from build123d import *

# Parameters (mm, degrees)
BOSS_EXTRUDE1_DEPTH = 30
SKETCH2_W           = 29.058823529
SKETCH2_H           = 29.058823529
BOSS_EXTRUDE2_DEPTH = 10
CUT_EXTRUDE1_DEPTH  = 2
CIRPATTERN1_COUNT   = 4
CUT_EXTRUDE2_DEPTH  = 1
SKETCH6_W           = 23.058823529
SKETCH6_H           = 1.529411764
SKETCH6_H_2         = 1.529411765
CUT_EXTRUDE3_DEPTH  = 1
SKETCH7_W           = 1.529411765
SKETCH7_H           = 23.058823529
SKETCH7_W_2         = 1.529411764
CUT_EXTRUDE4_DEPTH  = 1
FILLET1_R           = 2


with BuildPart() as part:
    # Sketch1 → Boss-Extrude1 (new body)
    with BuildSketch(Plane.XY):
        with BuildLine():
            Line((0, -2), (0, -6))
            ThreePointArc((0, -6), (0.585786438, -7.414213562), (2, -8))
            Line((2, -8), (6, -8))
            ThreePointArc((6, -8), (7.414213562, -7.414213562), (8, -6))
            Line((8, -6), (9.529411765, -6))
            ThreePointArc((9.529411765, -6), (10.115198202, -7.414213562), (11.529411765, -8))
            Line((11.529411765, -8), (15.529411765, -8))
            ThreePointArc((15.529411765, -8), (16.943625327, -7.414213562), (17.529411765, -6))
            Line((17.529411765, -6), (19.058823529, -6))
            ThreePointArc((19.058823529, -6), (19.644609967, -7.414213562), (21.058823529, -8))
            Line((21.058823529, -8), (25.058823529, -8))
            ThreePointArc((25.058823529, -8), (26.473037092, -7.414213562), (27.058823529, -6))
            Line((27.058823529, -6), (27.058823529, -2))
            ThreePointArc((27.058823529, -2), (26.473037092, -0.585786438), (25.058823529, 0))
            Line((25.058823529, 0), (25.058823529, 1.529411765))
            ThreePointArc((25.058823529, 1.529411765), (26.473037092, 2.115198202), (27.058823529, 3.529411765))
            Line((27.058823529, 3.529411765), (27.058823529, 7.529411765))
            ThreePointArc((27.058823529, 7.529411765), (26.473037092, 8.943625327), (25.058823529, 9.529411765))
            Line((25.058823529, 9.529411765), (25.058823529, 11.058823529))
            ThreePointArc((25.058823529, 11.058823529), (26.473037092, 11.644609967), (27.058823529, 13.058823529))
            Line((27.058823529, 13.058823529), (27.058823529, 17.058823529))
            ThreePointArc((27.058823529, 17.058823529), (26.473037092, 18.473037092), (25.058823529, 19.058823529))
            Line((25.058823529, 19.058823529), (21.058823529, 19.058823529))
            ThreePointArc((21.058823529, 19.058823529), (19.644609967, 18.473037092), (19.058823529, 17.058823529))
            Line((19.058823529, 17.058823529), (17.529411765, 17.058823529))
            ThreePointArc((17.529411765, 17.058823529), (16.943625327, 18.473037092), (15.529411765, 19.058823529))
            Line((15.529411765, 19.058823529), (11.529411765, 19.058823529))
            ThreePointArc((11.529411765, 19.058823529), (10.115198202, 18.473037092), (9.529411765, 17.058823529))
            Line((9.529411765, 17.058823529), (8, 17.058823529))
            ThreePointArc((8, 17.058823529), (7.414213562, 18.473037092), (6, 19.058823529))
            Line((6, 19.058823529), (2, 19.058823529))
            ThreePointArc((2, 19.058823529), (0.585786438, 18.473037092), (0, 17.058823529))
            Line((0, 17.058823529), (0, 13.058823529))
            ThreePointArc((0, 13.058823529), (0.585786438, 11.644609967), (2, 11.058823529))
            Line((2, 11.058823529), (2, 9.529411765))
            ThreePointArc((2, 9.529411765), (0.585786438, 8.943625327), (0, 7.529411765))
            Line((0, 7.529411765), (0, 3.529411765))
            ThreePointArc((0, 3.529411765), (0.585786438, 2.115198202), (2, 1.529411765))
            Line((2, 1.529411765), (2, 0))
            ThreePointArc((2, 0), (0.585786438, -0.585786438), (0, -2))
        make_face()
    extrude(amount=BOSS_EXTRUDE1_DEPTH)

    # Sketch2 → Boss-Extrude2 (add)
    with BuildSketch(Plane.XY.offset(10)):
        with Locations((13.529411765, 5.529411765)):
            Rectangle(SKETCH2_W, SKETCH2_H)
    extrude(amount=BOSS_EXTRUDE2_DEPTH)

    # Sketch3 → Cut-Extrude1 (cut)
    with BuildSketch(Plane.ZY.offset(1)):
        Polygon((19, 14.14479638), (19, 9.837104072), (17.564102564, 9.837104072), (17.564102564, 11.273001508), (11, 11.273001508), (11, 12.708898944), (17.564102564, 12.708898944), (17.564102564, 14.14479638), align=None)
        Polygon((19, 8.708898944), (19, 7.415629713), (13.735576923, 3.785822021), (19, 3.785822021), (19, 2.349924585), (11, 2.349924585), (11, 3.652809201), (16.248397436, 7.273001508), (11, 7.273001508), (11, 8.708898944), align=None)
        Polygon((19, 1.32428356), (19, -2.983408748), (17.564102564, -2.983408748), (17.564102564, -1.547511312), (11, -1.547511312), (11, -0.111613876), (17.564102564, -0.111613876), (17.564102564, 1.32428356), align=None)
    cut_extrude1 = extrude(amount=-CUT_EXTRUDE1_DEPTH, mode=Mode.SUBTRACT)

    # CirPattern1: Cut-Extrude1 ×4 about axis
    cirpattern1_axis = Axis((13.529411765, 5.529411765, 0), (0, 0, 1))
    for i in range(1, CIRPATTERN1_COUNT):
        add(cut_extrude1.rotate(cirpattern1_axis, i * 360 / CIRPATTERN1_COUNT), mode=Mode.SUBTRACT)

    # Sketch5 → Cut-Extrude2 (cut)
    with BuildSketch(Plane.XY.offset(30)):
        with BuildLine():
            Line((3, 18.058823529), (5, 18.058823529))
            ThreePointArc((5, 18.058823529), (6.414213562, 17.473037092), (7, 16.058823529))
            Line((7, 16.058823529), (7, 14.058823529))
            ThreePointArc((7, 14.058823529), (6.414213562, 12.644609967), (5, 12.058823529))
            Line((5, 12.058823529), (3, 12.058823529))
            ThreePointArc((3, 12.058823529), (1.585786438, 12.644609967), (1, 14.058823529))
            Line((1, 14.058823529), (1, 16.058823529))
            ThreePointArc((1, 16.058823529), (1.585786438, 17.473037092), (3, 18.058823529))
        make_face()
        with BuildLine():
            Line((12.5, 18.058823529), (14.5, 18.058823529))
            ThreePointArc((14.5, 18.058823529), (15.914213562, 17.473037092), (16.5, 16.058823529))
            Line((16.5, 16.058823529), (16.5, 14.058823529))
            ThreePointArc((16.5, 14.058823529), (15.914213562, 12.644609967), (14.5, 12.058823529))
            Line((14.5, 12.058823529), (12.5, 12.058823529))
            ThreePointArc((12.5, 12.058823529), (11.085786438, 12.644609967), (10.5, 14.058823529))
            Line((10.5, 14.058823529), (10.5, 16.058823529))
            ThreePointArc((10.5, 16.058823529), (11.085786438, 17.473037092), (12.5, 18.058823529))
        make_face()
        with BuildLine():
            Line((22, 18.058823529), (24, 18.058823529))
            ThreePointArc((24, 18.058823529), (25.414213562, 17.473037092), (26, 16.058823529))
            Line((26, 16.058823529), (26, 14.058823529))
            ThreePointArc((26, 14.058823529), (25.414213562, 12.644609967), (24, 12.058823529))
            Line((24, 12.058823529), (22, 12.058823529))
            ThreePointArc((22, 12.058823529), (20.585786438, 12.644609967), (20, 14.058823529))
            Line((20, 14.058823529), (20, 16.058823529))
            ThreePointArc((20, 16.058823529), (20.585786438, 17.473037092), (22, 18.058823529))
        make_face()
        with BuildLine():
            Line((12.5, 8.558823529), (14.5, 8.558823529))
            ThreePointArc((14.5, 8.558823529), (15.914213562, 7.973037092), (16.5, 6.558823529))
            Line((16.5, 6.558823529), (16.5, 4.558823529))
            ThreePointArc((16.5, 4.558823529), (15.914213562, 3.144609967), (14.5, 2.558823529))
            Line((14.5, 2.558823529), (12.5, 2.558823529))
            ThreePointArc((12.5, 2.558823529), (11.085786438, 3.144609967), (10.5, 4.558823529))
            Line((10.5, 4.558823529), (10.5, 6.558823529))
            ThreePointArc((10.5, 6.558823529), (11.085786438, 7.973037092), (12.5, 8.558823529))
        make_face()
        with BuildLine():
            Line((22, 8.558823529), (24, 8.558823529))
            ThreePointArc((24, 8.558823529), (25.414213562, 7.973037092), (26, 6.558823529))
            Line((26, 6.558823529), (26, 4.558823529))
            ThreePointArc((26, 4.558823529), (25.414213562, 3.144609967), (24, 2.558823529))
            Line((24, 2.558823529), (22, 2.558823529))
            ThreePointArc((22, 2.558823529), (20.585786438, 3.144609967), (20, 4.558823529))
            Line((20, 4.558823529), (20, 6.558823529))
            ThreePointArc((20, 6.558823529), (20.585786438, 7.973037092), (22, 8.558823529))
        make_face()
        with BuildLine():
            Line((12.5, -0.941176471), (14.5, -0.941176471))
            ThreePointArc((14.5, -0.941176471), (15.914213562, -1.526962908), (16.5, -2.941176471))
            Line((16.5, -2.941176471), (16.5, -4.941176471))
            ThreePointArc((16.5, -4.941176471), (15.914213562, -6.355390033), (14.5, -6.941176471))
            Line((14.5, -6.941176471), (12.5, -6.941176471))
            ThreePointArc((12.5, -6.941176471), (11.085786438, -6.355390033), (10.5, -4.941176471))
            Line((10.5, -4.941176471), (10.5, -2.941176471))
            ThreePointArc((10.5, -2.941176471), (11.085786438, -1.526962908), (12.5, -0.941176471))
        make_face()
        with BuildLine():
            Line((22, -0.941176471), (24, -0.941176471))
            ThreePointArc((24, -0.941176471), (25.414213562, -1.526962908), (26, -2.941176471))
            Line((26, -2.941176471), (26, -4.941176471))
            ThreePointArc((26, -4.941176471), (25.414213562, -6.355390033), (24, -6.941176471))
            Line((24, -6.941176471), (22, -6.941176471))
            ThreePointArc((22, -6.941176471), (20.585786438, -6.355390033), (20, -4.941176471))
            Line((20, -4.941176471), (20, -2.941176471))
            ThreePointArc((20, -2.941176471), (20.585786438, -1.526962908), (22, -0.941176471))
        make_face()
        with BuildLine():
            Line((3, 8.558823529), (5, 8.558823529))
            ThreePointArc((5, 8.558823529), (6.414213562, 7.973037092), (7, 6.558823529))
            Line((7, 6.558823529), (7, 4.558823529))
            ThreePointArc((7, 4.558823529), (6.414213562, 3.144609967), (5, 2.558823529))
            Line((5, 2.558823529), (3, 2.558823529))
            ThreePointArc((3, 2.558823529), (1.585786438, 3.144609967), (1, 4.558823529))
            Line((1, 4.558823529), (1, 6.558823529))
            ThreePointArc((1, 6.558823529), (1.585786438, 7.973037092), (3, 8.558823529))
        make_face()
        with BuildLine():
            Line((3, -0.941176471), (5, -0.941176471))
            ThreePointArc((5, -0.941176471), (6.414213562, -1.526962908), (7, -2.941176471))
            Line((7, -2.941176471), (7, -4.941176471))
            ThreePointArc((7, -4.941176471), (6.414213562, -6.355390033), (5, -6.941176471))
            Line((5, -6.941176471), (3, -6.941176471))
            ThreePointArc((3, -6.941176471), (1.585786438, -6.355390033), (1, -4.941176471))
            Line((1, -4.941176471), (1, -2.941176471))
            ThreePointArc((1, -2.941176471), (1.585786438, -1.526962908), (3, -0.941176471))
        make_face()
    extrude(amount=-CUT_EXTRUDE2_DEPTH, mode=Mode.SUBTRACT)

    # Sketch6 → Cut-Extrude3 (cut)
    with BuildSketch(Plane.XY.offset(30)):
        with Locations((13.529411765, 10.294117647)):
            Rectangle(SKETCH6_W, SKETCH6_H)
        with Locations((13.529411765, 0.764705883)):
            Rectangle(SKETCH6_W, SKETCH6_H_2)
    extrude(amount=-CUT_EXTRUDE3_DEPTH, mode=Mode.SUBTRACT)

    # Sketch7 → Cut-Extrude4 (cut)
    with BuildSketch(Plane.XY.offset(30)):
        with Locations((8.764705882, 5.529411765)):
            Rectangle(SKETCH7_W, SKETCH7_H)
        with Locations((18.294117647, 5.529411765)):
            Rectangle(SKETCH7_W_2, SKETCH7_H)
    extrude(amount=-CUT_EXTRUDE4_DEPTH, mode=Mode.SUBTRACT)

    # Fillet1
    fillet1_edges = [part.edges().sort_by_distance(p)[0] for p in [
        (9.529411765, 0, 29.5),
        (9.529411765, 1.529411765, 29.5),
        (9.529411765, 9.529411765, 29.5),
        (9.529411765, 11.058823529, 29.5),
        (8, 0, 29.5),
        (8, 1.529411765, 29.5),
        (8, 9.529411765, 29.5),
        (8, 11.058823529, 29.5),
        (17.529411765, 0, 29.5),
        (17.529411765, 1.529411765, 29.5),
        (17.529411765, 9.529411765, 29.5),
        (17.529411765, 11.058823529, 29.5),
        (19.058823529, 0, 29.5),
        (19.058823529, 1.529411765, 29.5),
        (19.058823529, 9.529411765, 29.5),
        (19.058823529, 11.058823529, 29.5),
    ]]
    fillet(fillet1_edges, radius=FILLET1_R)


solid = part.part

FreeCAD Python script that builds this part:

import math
import FreeCAD as App
import Part
import Sketcher
from FreeCAD import Vector
Q = App.Units.Quantity


def edges_at(feature, points):
    """Names of the edges that pass closest to the given points."""
    edges = feature.Shape.Edges
    near = lambda p: min(range(len(edges)), key=lambda i: edges[i].distToShape(Part.Vertex(*p))[0])
    return sorted({f"Edge{near(p) + 1}" for p in points})


def add_polygon(sketch, points):
    """Adds a closed chain of lines whose ends are joined by coincident constraints."""
    first, n = sketch.GeometryCount, len(points)
    for a, b in zip(points, points[1:] + points[:1]):
        sketch.addGeometry(Part.LineSegment(App.Vector(*a, 0), App.Vector(*b, 0)), False)
    for i in range(n):
        sketch.addConstraint(Sketcher.Constraint("Coincident", first + i, 2, first + (i + 1) % n, 1))

doc = App.newDocument("Part")
body = doc.addObject("PartDesign::Body", "Body")

# Sketch on XY plane
sketch1 = doc.addObject("Sketcher::SketchObject", "Sketch")
body.addObject(sketch1)
sketch1.AttachmentSupport = (doc.XY_Plane, [""])
sketch1.MapMode = "FlatFace"
sketch1.addGeometry(Part.LineSegment(Vector(0, -2, 0), Vector(0, -6, 0)), False)
sketch1.addGeometry(Part.ArcOfCircle(Part.Circle(Vector(2, -6, 0), Vector(0, 0, 1), 2), math.radians(-180), math.radians(-90)), False)
sketch1.addGeometry(Part.LineSegment(Vector(2, -8, 0), Vector(6, -8, 0)), False)
sketch1.addGeometry(Part.ArcOfCircle(Part.Circle(Vector(6, -6, 0), Vector(0, 0, 1), 2), math.radians(-90), math.radians(0)), False)
sketch1.addGeometry(Part.LineSegment(Vector(8, -6, 0), Vector(9.5, -6, 0)), False)
sketch1.addGeometry(Part.ArcOfCircle(Part.Circle(Vector(11.5, -6, 0), Vector(0, 0, 1), 2), math.radians(180), math.radians(270)), False)
sketch1.addGeometry(Part.LineSegment(Vector(11.5, -8, 0), Vector(15.5, -8, 0)), False)
sketch1.addGeometry(Part.ArcOfCircle(Part.Circle(Vector(15.5, -6, 0), Vector(0, 0, 1), 2), math.radians(-90), math.radians(0)), False)
sketch1.addGeometry(Part.LineSegment(Vector(17.5, -6, 0), Vector(19.1, -6, 0)), False)
sketch1.addGeometry(Part.ArcOfCircle(Part.Circle(Vector(21.1, -6, 0), Vector(0, 0, 1), 2), math.radians(-180), math.radians(-90)), False)
sketch1.addGeometry(Part.LineSegment(Vector(21.1, -8, 0), Vector(25.1, -8, 0)), False)
sketch1.addGeometry(Part.ArcOfCircle(Part.Circle(Vector(25.1, -6, 0), Vector(0, 0, 1), 2), math.radians(-90), math.radians(0)), False)
sketch1.addGeometry(Part.LineSegment(Vector(27.1, -6, 0), Vector(27.1, -2, 0)), False)
sketch1.addGeometry(Part.ArcOfCircle(Part.Circle(Vector(25.1, -2, 0), Vector(0, 0, 1), 2), math.radians(0), math.radians(90)), False)
sketch1.addGeometry(Part.LineSegment(Vector(25.1, 0, 0), Vector(25.1, 1.5, 0)), False)
sketch1.addGeometry(Part.ArcOfCircle(Part.Circle(Vector(25.1, 3.5, 0), Vector(0, 0, 1), 2), math.radians(-90), math.radians(0)), False)
sketch1.addGeometry(Part.LineSegment(Vector(27.1, 3.5, 0), Vector(27.1, 7.5, 0)), False)
sketch1.addGeometry(Part.ArcOfCircle(Part.Circle(Vector(25.1, 7.5, 0), Vector(0, 0, 1), 2), math.radians(0), math.radians(90)), False)
sketch1.addGeometry(Part.LineSegment(Vector(25.1, 9.5, 0), Vector(25.1, 11.1, 0)), False)
sketch1.addGeometry(Part.ArcOfCircle(Part.Circle(Vector(25.1, 13.1, 0), Vector(0, 0, 1), 2), math.radians(-90), math.radians(0)), False)
sketch1.addGeometry(Part.LineSegment(Vector(27.1, 13.1, 0), Vector(27.1, 17.1, 0)), False)
sketch1.addGeometry(Part.ArcOfCircle(Part.Circle(Vector(25.1, 17.1, 0), Vector(0, 0, 1), 2), math.radians(0), math.radians(90)), False)
sketch1.addGeometry(Part.LineSegment(Vector(25.1, 19.1, 0), Vector(21.1, 19.1, 0)), False)
sketch1.addGeometry(Part.ArcOfCircle(Part.Circle(Vector(21.1, 17.1, 0), Vector(0, 0, 1), 2), math.radians(90), math.radians(180)), False)
sketch1.addGeometry(Part.LineSegment(Vector(19.1, 17.1, 0), Vector(17.5, 17.1, 0)), False)
sketch1.addGeometry(Part.ArcOfCircle(Part.Circle(Vector(15.5, 17.1, 0), Vector(0, 0, 1), 2), math.radians(0), math.radians(90)), False)
sketch1.addGeometry(Part.LineSegment(Vector(15.5, 19.1, 0), Vector(11.5, 19.1, 0)), False)
sketch1.addGeometry(Part.ArcOfCircle(Part.Circle(Vector(11.5, 17.1, 0), Vector(0, 0, 1), 2), math.radians(90), math.radians(180)), False)
sketch1.addGeometry(Part.LineSegment(Vector(9.5, 17.1, 0), Vector(8, 17.1, 0)), False)
sketch1.addGeometry(Part.ArcOfCircle(Part.Circle(Vector(6, 17.1, 0), Vector(0, 0, 1), 2), math.radians(0), math.radians(90)), False)
sketch1.addGeometry(Part.LineSegment(Vector(6, 19.1, 0), Vector(2, 19.1, 0)), False)
sketch1.addGeometry(Part.ArcOfCircle(Part.Circle(Vector(2, 17.1, 0), Vector(0, 0, 1), 2), math.radians(90), math.radians(180)), False)
sketch1.addGeometry(Part.LineSegment(Vector(0, 17.1, 0), Vector(0, 13.1, 0)), False)
sketch1.addGeometry(Part.ArcOfCircle(Part.Circle(Vector(2, 13.1, 0), Vector(0, 0, 1), 2), math.radians(-180), math.radians(-90)), False)
sketch1.addGeometry(Part.LineSegment(Vector(2, 11.1, 0), Vector(2, 9.5, 0)), False)
sketch1.addGeometry(Part.ArcOfCircle(Part.Circle(Vector(2, 7.5, 0), Vector(0, 0, 1), 2), math.radians(90), math.radians(180)), False)
sketch1.addGeometry(Part.LineSegment(Vector(0, 7.5, 0), Vector(0, 3.5, 0)), False)
sketch1.addGeometry(Part.ArcOfCircle(Part.Circle(Vector(2, 3.5, 0), Vector(0, 0, 1), 2), math.radians(180), math.radians(270)), False)
sketch1.addGeometry(Part.LineSegment(Vector(2, 1.5, 0), Vector(2, 0, 0)), False)
sketch1.addGeometry(Part.ArcOfCircle(Part.Circle(Vector(2, -2, 0), Vector(0, 0, 1), 2), math.radians(90), math.radians(180)), False)
sketch1.addConstraint(Sketcher.Constraint("Tangent", 0, 2, 1, 1))
sketch1.addConstraint(Sketcher.Constraint("Tangent", 1, 2, 2, 1))
sketch1.addConstraint(Sketcher.Constraint("Tangent", 2, 2, 3, 1))
sketch1.addConstraint(Sketcher.Constraint("Coincident", 3, 2, 4, 1))
sketch1.addConstraint(Sketcher.Constraint("Coincident", 4, 2, 5, 1))
sketch1.addConstraint(Sketcher.Constraint("Tangent", 5, 2, 6, 1))
sketch1.addConstraint(Sketcher.Constraint("Tangent", 6, 2, 7, 1))
sketch1.addConstraint(Sketcher.Constraint("Coincident", 7, 2, 8, 1))
sketch1.addConstraint(Sketcher.Constraint("Coincident", 8, 2, 9, 1))
sketch1.addConstraint(Sketcher.Constraint("Tangent", 9, 2, 10, 1))
sketch1.addConstraint(Sketcher.Constraint("Tangent", 10, 2, 11, 1))
sketch1.addConstraint(Sketcher.Constraint("Tangent", 11, 2, 12, 1))
sketch1.addConstraint(Sketcher.Constraint("Tangent", 12, 2, 13, 1))
sketch1.addConstraint(Sketcher.Constraint("Coincident", 13, 2, 14, 1))
sketch1.addConstraint(Sketcher.Constraint("Coincident", 14, 2, 15, 1))
sketch1.addConstraint(Sketcher.Constraint("Tangent", 15, 2, 16, 1))
sketch1.addConstraint(Sketcher.Constraint("Tangent", 16, 2, 17, 1))
sketch1.addConstraint(Sketcher.Constraint("Coincident", 17, 2, 18, 1))
sketch1.addConstraint(Sketcher.Constraint("Coincident", 18, 2, 19, 1))
sketch1.addConstraint(Sketcher.Constraint("Tangent", 19, 2, 20, 1))
sketch1.addConstraint(Sketcher.Constraint("Tangent", 20, 2, 21, 1))
sketch1.addConstraint(Sketcher.Constraint("Tangent", 21, 2, 22, 1))
sketch1.addConstraint(Sketcher.Constraint("Tangent", 22, 2, 23, 1))
sketch1.addConstraint(Sketcher.Constraint("Coincident", 23, 2, 24, 1))
sketch1.addConstraint(Sketcher.Constraint("Coincident", 24, 2, 25, 1))
sketch1.addConstraint(Sketcher.Constraint("Tangent", 25, 2, 26, 1))
sketch1.addConstraint(Sketcher.Constraint("Tangent", 26, 2, 27, 1))
sketch1.addConstraint(Sketcher.Constraint("Coincident", 27, 2, 28, 1))
sketch1.addConstraint(Sketcher.Constraint("Coincident", 28, 2, 29, 1))
sketch1.addConstraint(Sketcher.Constraint("Tangent", 29, 2, 30, 1))
sketch1.addConstraint(Sketcher.Constraint("Tangent", 30, 2, 31, 1))
sketch1.addConstraint(Sketcher.Constraint("Tangent", 31, 2, 32, 1))
sketch1.addConstraint(Sketcher.Constraint("Tangent", 32, 2, 33, 1))
sketch1.addConstraint(Sketcher.Constraint("Coincident", 33, 2, 34, 1))
sketch1.addConstraint(Sketcher.Constraint("Coincident", 34, 2, 35, 1))
sketch1.addConstraint(Sketcher.Constraint("Tangent", 35, 2, 36, 1))
sketch1.addConstraint(Sketcher.Constraint("Tangent", 36, 2, 37, 1))
sketch1.addConstraint(Sketcher.Constraint("Coincident", 37, 2, 38, 1))
sketch1.addConstraint(Sketcher.Constraint("Coincident", 38, 2, 39, 1))
sketch1.addConstraint(Sketcher.Constraint("Tangent", 39, 2, 0, 1))
sketch1.addConstraint(Sketcher.Constraint("Vertical", 0))
sketch1.addConstraint(Sketcher.Constraint("Horizontal", 2))
sketch1.addConstraint(Sketcher.Constraint("Horizontal", 4))
sketch1.addConstraint(Sketcher.Constraint("Horizontal", 6))
sketch1.addConstraint(Sketcher.Constraint("Horizontal", 8))
sketch1.addConstraint(Sketcher.Constraint("Horizontal", 10))
sketch1.addConstraint(Sketcher.Constraint("Vertical", 12))
sketch1.addConstraint(Sketcher.Constraint("Vertical", 14))
sketch1.addConstraint(Sketcher.Constraint("Vertical", 16))
sketch1.addConstraint(Sketcher.Constraint("Vertical", 18))
sketch1.addConstraint(Sketcher.Constraint("Vertical", 20))
sketch1.addConstraint(Sketcher.Constraint("Horizontal", 22))
sketch1.addConstraint(Sketcher.Constraint("Horizontal", 24))
sketch1.addConstraint(Sketcher.Constraint("Horizontal", 26))
sketch1.addConstraint(Sketcher.Constraint("Horizontal", 28))
sketch1.addConstraint(Sketcher.Constraint("Horizontal", 30))
sketch1.addConstraint(Sketcher.Constraint("Vertical", 32))
sketch1.addConstraint(Sketcher.Constraint("Vertical", 34))
sketch1.addConstraint(Sketcher.Constraint("Vertical", 36))
sketch1.addConstraint(Sketcher.Constraint("Vertical", 38))
sketch1.addConstraint(Sketcher.Constraint("Equal", 1, 3))
sketch1.addConstraint(Sketcher.Constraint("Equal", 3, 5))
sketch1.addConstraint(Sketcher.Constraint("Equal", 5, 7))
sketch1.addConstraint(Sketcher.Constraint("Equal", 7, 9))
sketch1.addConstraint(Sketcher.Constraint("Equal", 9, 11))
sketch1.addConstraint(Sketcher.Constraint("Equal", 11, 13))
sketch1.addConstraint(Sketcher.Constraint("Equal", 13, 15))
sketch1.addConstraint(Sketcher.Constraint("Equal", 15, 17))
sketch1.addConstraint(Sketcher.Constraint("Equal", 17, 19))
sketch1.addConstraint(Sketcher.Constraint("Equal", 19, 21))
sketch1.addConstraint(Sketcher.Constraint("Equal", 21, 23))
sketch1.addConstraint(Sketcher.Constraint("Equal", 23, 25))
sketch1.addConstraint(Sketcher.Constraint("Equal", 25, 27))
sketch1.addConstraint(Sketcher.Constraint("Equal", 27, 29))
sketch1.addConstraint(Sketcher.Constraint("Equal", 29, 31))
sketch1.addConstraint(Sketcher.Constraint("Equal", 31, 33))
sketch1.addConstraint(Sketcher.Constraint("Equal", 33, 35))
sketch1.addConstraint(Sketcher.Constraint("Equal", 35, 37))
sketch1.addConstraint(Sketcher.Constraint("Equal", 37, 39))
sketch1.addConstraint(Sketcher.Constraint("PointOnObject", 0, 2, -2))
sketch1.addConstraint(Sketcher.Constraint("PointOnObject", 13, 2, -1))
sketch1.addConstraint(Sketcher.Constraint("PointOnObject", 31, 2, -2))
sketch1.addConstraint(Sketcher.Constraint("PointOnObject", 35, 2, -2))
sketch1.addConstraint(Sketcher.Constraint("PointOnObject", 38, 2, -1))
sketch1.addConstraint(Sketcher.Constraint("Horizontal", 3, 3, 5, 3))
sketch1.addConstraint(Sketcher.Constraint("Horizontal", 7, 3, 9, 3))
sketch1.addConstraint(Sketcher.Constraint("Horizontal", 23, 3, 25, 3))
sketch1.addConstraint(Sketcher.Constraint("Horizontal", 27, 3, 29, 3))
sketch1.addConstraint(Sketcher.Constraint("Horizontal", 19, 3, 33, 3))
sketch1.addConstraint(Sketcher.Constraint("Horizontal", 17, 3, 35, 3))
sketch1.addConstraint(Sketcher.Constraint("Horizontal", 15, 3, 37, 3))
sketch1.addConstraint(Sketcher.Constraint("Horizontal", 0, 2, 3, 2))
sketch1.addConstraint(Sketcher.Constraint("Horizontal", 4, 2, 7, 2))
sketch1.addConstraint(Sketcher.Constraint("Horizontal", 20, 2, 23, 2))
sketch1.addConstraint(Sketcher.Constraint("Horizontal", 24, 2, 27, 2))
sketch1.addConstraint(Sketcher.Constraint("Vertical", 13, 3, 15, 3))
sketch1.addConstraint(Sketcher.Constraint("Vertical", 17, 3, 19, 3))
sketch1.addConstraint(Sketcher.Constraint("Vertical", 9, 3, 23, 3))
sketch1.addConstraint(Sketcher.Constraint("Vertical", 7, 3, 25, 3))
sketch1.addConstraint(Sketcher.Constraint("Vertical", 5, 3, 27, 3))
sketch1.addConstraint(Sketcher.Constraint("Vertical", 3, 3, 29, 3))
sketch1.addConstraint(Sketcher.Constraint("Vertical", 10, 2, 13, 2))
sketch1.addConstraint(Sketcher.Constraint("Vertical", 14, 2, 17, 2))
sketch1.addConstraint(Sketcher.Constraint("Vertical", 30, 2, 33, 2))
sketch1.addConstraint(Sketcher.Constraint("Vertical", 34, 2, 37, 2))
sketch1.addConstraint(Sketcher.Constraint("Equal", 2, 6))
sketch1.addConstraint(Sketcher.Constraint("Equal", 4, 8))
sketch1.addConstraint(Sketcher.Constraint("Equal", 6, 10))
sketch1.addConstraint(Sketcher.Constraint("Equal", 30, 0))
sketch1.addConstraint(Sketcher.Constraint("Equal", 28, 14))
sketch1.addConstraint(Sketcher.Constraint("Equal", 12, 16))
sketch1.addConstraint(Sketcher.Constraint("Equal", 14, 18))
sketch1.addConstraint(Sketcher.Constraint("Equal", 16, 20))
sketch1.addConstraint(Sketcher.Constraint("Radius", 1, Q("2 mm")))
sketch1.addConstraint(Sketcher.Constraint("DistanceX", 2, 1, 2, 2, Q("4 mm")))
sketch1.addConstraint(Sketcher.Constraint("DistanceX", 4, 1, 4, 2, Q("1.529412 mm")))
pad1 = doc.addObject("PartDesign::Pad", "Pad")
body.addObject(pad1)
pad1.Profile = sketch1
pad1.Length = 30

# Sketch on XY plane
sketch2 = doc.addObject("Sketcher::SketchObject", "Sketch001")
body.addObject(sketch2)
sketch2.AttachmentSupport = (doc.XY_Plane, [""])
sketch2.MapMode = "FlatFace"
sketch2.AttachmentOffset = App.Placement(Vector(0, 0, 10), App.Rotation())
add_polygon(sketch2, [(-1, 20), (-1, -9), (28, -9), (28, 20)])  # lines 0-3
sketch2.addConstraint(Sketcher.Constraint("Vertical", 0))
sketch2.addConstraint(Sketcher.Constraint("Horizontal", 1))
sketch2.addConstraint(Sketcher.Constraint("Vertical", 2))
sketch2.addConstraint(Sketcher.Constraint("Horizontal", 3))
sketch2.addConstraint(Sketcher.Constraint("Equal", 3, 0))
sketch2.addConstraint(Sketcher.Constraint("DistanceX", 0, 2, -1, 1, Q("1 mm")))
sketch2.addConstraint(Sketcher.Constraint("DistanceY", 0, 2, -1, 1, Q("9 mm")))
sketch2.addConstraint(Sketcher.Constraint("DistanceX", 1, 1, 1, 2, Q("29.058824 mm")))
pad2 = doc.addObject("PartDesign::Pad", "Pad001")
body.addObject(pad2)
pad2.Profile = sketch2
pad2.Length = 10

# Sketch on YZ plane
sketch3 = doc.addObject("Sketcher::SketchObject", "Sketch002")
body.addObject(sketch3)
sketch3.AttachmentSupport = (doc.YZ_Plane, [""])
sketch3.MapMode = "FlatFace"
sketch3.AttachmentOffset = App.Placement(Vector(0, 0, -1), App.Rotation())
add_polygon(sketch3, [(9.8, 19), (14.1, 19), (14.1, 17.6), (12.7, 17.6), (12.7, 11), (11.3, 11), (11.3, 17.6), (9.8, 17.6)])  # lines 0-7
add_polygon(sketch3, [(7.4, 19), (8.7, 19), (8.7, 11), (7.3, 11), (7.3, 16.2), (3.7, 11), (2.3, 11), (2.3, 19), (3.8, 19), (3.8, 13.7)])  # lines 8-17
add_polygon(sketch3, [(-3, 19), (1.3, 19), (1.3, 17.6), (-0.1, 17.6), (-0.1, 11), (-1.5, 11), (-1.5, 17.6), (-3, 17.6)])  # lines 18-25
sketch3.addConstraint(Sketcher.Constraint("Horizontal", 0))
sketch3.addConstraint(Sketcher.Constraint("Vertical", 1))
sketch3.addConstraint(Sketcher.Constraint("Horizontal", 2))
sketch3.addConstraint(Sketcher.Constraint("Vertical", 3))
sketch3.addConstraint(Sketcher.Constraint("Horizontal", 4))
sketch3.addConstraint(Sketcher.Constraint("Vertical", 5))
sketch3.addConstraint(Sketcher.Constraint("Horizontal", 6))
sketch3.addConstraint(Sketcher.Constraint("Vertical", 7))
sketch3.addConstraint(Sketcher.Constraint("Horizontal", 8))
sketch3.addConstraint(Sketcher.Constraint("Vertical", 9))
sketch3.addConstraint(Sketcher.Constraint("Horizontal", 10))
sketch3.addConstraint(Sketcher.Constraint("Vertical", 11))
sketch3.addConstraint(Sketcher.Constraint("Horizontal", 13))
sketch3.addConstraint(Sketcher.Constraint("Vertical", 14))
sketch3.addConstraint(Sketcher.Constraint("Horizontal", 15))
sketch3.addConstraint(Sketcher.Constraint("Vertical", 16))
sketch3.addConstraint(Sketcher.Constraint("Horizontal", 18))
sketch3.addConstraint(Sketcher.Constraint("Vertical", 19))
sketch3.addConstraint(Sketcher.Constraint("Horizontal", 20))
sketch3.addConstraint(Sketcher.Constraint("Vertical", 21))
sketch3.addConstraint(Sketcher.Constraint("Horizontal", 22))
sketch3.addConstraint(Sketcher.Constraint("Vertical", 23))
sketch3.addConstraint(Sketcher.Constraint("Horizontal", 24))
sketch3.addConstraint(Sketcher.Constraint("Vertical", 25))
sketch3.addConstraint(Sketcher.Constraint("Horizontal", 2, 2, 5, 2))
sketch3.addConstraint(Sketcher.Constraint("Horizontal", 7, 2, 8, 2))
sketch3.addConstraint(Sketcher.Constraint("Horizontal", 4, 2, 9, 2))
sketch3.addConstraint(Sketcher.Constraint("Horizontal", 10, 2, 12, 2))
sketch3.addConstraint(Sketcher.Constraint("Horizontal", 8, 2, 14, 2))
sketch3.addConstraint(Sketcher.Constraint("Horizontal", 17, 2, 18, 2))
sketch3.addConstraint(Sketcher.Constraint("Horizontal", 6, 2, 19, 2))
sketch3.addConstraint(Sketcher.Constraint("Horizontal", 13, 2, 21, 2))
sketch3.addConstraint(Sketcher.Constraint("Horizontal", 20, 2, 23, 2))
sketch3.addConstraint(Sketcher.Constraint("Equal", 2, 4))
sketch3.addConstraint(Sketcher.Constraint("Equal", 4, 6))
sketch3.addConstraint(Sketcher.Constraint("Equal", 6, 10))
sketch3.addConstraint(Sketcher.Constraint("Equal", 10, 15))
sketch3.addConstraint(Sketcher.Constraint("Equal", 0, 18))
sketch3.addConstraint(Sketcher.Constraint("Equal", 15, 20))
sketch3.addConstraint(Sketcher.Constraint("Equal", 20, 22))
sketch3.addConstraint(Sketcher.Constraint("Equal", 24, 1))
sketch3.addConstraint(Sketcher.Constraint("DistanceY", 9, 2, 9, 1, Q("8 mm")))
sketch3.addConstraint(Sketcher.Constraint("DistanceY", -1, 1, 0, 2, Q("19 mm")))
sketch3.addConstraint(Sketcher.Constraint("DistanceX", 8, 2, 2, 2, Q("4 mm")))
sketch3.addConstraint(Sketcher.Constraint("DistanceX", -1, 1, 4, 2, Q("11.273002 mm")))
sketch3.addConstraint(Sketcher.Constraint("Distance", 17, Q("6.394502 mm")))
sketch3.addConstraint(Sketcher.Constraint("DistanceX", 8, 1, 8, 2, Q("1.293269 mm")))
sketch3.addConstraint(Sketcher.Constraint("DistanceX", -1, 1, 2, 2, Q("12.708899 mm")))
sketch3.addConstraint(Sketcher.Constraint("Distance", 12, Q("6.37585 mm")))
sketch3.addConstraint(Sketcher.Constraint("DistanceX", 13, 2, 13, 1, Q("1.302885 mm")))
sketch3.addConstraint(Sketcher.Constraint("DistanceY", 11, 1, 11, 2, Q("5.248397 mm")))
sketch3.addConstraint(Sketcher.Constraint("DistanceX", 22, 2, -1, 1, Q("1.547511 mm")))
pocket1 = doc.addObject("PartDesign::Pocket", "Pocket")
body.addObject(pocket1)
pocket1.Profile = sketch3
pocket1.Length = 2
pocket1.Reversed = True
doc.recompute()

datumline = doc.addObject("PartDesign::Line", "DatumLine")
body.addObject(datumline)
datumline.Placement = App.Placement(Vector(13.529412, 5.529412, 0), App.Rotation(Vector(0, 0, 1), Vector(0, 0, 1)))
polarpattern = doc.addObject("PartDesign::PolarPattern", "PolarPattern")
body.addObject(polarpattern)
polarpattern.Originals = [pocket1]
polarpattern.Axis = (datumline, [""])
polarpattern.Angle = 360
polarpattern.Occurrences = 4
body.Tip = polarpattern

# Sketch on XY plane
sketch4 = doc.addObject("Sketcher::SketchObject", "Sketch003")
body.addObject(sketch4)
sketch4.AttachmentSupport = (doc.XY_Plane, [""])
sketch4.MapMode = "FlatFace"
sketch4.AttachmentOffset = App.Placement(Vector(0, 0, 30), App.Rotation())
sketch4.addGeometry(Part.LineSegment(Vector(5, 18.1, 0), Vector(3, 18.1, 0)), False)
sketch4.addGeometry(Part.ArcOfCircle(Part.Circle(Vector(3, 16.1, 0), Vector(0, 0, 1), 2), math.radians(90), math.radians(180)), False)
sketch4.addGeometry(Part.LineSegment(Vector(1, 16.1, 0), Vector(1, 14.1, 0)), False)
sketch4.addGeometry(Part.ArcOfCircle(Part.Circle(Vector(3, 14.1, 0), Vector(0, 0, 1), 2), math.radians(-180), math.radians(-90)), False)
sketch4.addGeometry(Part.LineSegment(Vector(3, 12.1, 0), Vector(5, 12.1, 0)), False)
sketch4.addGeometry(Part.ArcOfCircle(Part.Circle(Vector(5, 14.1, 0), Vector(0, 0, 1), 2), math.radians(-90), math.radians(0)), False)
sketch4.addGeometry(Part.LineSegment(Vector(7, 14.1, 0), Vector(7, 16.1, 0)), False)
sketch4.addGeometry(Part.ArcOfCircle(Part.Circle(Vector(5, 16.1, 0), Vector(0, 0, 1), 2), math.radians(0), math.radians(90)), False)
sketch4.addGeometry(Part.LineSegment(Vector(14.5, 18.1, 0), Vector(12.5, 18.1, 0)), False)
sketch4.addGeometry(Part.ArcOfCircle(Part.Circle(Vector(12.5, 16.1, 0), Vector(0, 0, 1), 2), math.radians(90), math.radians(180)), False)
sketch4.addGeometry(Part.LineSegment(Vector(10.5, 16.1, 0), Vector(10.5, 14.1, 0)), False)
sketch4.addGeometry(Part.ArcOfCircle(Part.Circle(Vector(12.5, 14.1, 0), Vector(0, 0, 1), 2), math.radians(-180), math.radians(-90)), False)
sketch4.addGeometry(Part.LineSegment(Vector(12.5, 12.1, 0), Vector(14.5, 12.1, 0)), False)
sketch4.addGeometry(Part.ArcOfCircle(Part.Circle(Vector(14.5, 14.1, 0), Vector(0, 0, 1), 2), math.radians(-90), math.radians(0)), False)
sketch4.addGeometry(Part.LineSegment(Vector(16.5, 14.1, 0), Vector(16.5, 16.1, 0)), False)
sketch4.addGeometry(Part.ArcOfCircle(Part.Circle(Vector(14.5, 16.1, 0), Vector(0, 0, 1), 2), math.radians(0), math.radians(90)), False)
sketch4.addGeometry(Part.LineSegment(Vector(24, 18.1, 0), Vector(22, 18.1, 0)), False)
sketch4.addGeometry(Part.ArcOfCircle(Part.Circle(Vector(22, 16.1, 0), Vector(0, 0, 1), 2), math.radians(90), math.radians(180)), False)
sketch4.addGeometry(Part.LineSegment(Vector(20, 16.1, 0), Vector(20, 14.1, 0)), False)
sketch4.addGeometry(Part.ArcOfCircle(Part.Circle(Vector(22, 14.1, 0), Vector(0, 0, 1), 2), math.radians(-180), math.radians(-90)), False)
sketch4.addGeometry(Part.LineSegment(Vector(22, 12.1, 0), Vector(24, 12.1, 0)), False)
sketch4.addGeometry(Part.ArcOfCircle(Part.Circle(Vector(24, 14.1, 0), Vector(0, 0, 1), 2), math.radians(-90), math.radians(0)), False)
sketch4.addGeometry(Part.LineSegment(Vector(26, 14.1, 0), Vector(26, 16.1, 0)), False)
sketch4.addGeometry(Part.ArcOfCircle(Part.Circle(Vector(24, 16.1, 0), Vector(0, 0, 1), 2), math.radians(0), math.radians(90)), False)
sketch4.addGeometry(Part.LineSegment(Vector(14.5, 8.6, 0), Vector(12.5, 8.6, 0)), False)
sketch4.addGeometry(Part.ArcOfCircle(Part.Circle(Vector(12.5, 6.6, 0), Vector(0, 0, 1), 2), math.radians(90), math.radians(180)), False)
sketch4.addGeometry(Part.LineSegment(Vector(10.5, 6.6, 0), Vector(10.5, 4.6, 0)), False)
sketch4.addGeometry(Part.ArcOfCircle(Part.Circle(Vector(12.5, 4.6, 0), Vector(0, 0, 1), 2), math.radians(-180), math.radians(-90)), False)
sketch4.addGeometry(Part.LineSegment(Vector(12.5, 2.6, 0), Vector(14.5, 2.6, 0)), False)
sketch4.addGeometry(Part.ArcOfCircle(Part.Circle(Vector(14.5, 4.6, 0), Vector(0, 0, 1), 2), math.radians(-90), math.radians(0)), False)
sketch4.addGeometry(Part.LineSegment(Vector(16.5, 4.6, 0), Vector(16.5, 6.6, 0)), False)
sketch4.addGeometry(Part.ArcOfCircle(Part.Circle(Vector(14.5, 6.6, 0), Vector(0, 0, 1), 2), math.radians(0), math.radians(90)), False)
sketch4.addGeometry(Part.LineSegment(Vector(24, 8.6, 0), Vector(22, 8.6, 0)), False)
sketch4.addGeometry(Part.ArcOfCircle(Part.Circle(Vector(22, 6.6, 0), Vector(0, 0, 1), 2), math.radians(90), math.radians(180)), False)
sketch4.addGeometry(Part.LineSegment(Vector(20, 6.6, 0), Vector(20, 4.6, 0)), False)
sketch4.addGeometry(Part.ArcOfCircle(Part.Circle(Vector(22, 4.6, 0), Vector(0, 0, 1), 2), math.radians(-180), math.radians(-90)), False)
sketch4.addGeometry(Part.LineSegment(Vector(22, 2.6, 0), Vector(24, 2.6, 0)), False)
sketch4.addGeometry(Part.ArcOfCircle(Part.Circle(Vector(24, 4.6, 0), Vector(0, 0, 1), 2), math.radians(-90), math.radians(0)), False)
sketch4.addGeometry(Part.LineSegment(Vector(26, 4.6, 0), Vector(26, 6.6, 0)), False)
sketch4.addGeometry(Part.ArcOfCircle(Part.Circle(Vector(24, 6.6, 0), Vector(0, 0, 1), 2), math.radians(0), math.radians(90)), False)
sketch4.addGeometry(Part.LineSegment(Vector(14.5, -0.9, 0), Vector(12.5, -0.9, 0)), False)
sketch4.addGeometry(Part.ArcOfCircle(Part.Circle(Vector(12.5, -2.9, 0), Vector(0, 0, 1), 2), math.radians(90), math.radians(180)), False)
sketch4.addGeometry(Part.LineSegment(Vector(10.5, -2.9, 0), Vector(10.5, -4.9, 0)), False)
sketch4.addGeometry(Part.ArcOfCircle(Part.Circle(Vector(12.5, -4.9, 0), Vector(0, 0, 1), 2), math.radians(-180), math.radians(-90)), False)
sketch4.addGeometry(Part.LineSegment(Vector(12.5, -6.9, 0), Vector(14.5, -6.9, 0)), False)
sketch4.addGeometry(Part.ArcOfCircle(Part.Circle(Vector(14.5, -4.9, 0), Vector(0, 0, 1), 2), math.radians(-90), math.radians(0)), False)
sketch4.addGeometry(Part.LineSegment(Vector(16.5, -4.9, 0), Vector(16.5, -2.9, 0)), False)
sketch4.addGeometry(Part.ArcOfCircle(Part.Circle(Vector(14.5, -2.9, 0), Vector(0, 0, 1), 2), math.radians(0), math.radians(90)), False)
sketch4.addGeometry(Part.LineSegment(Vector(24, -0.9, 0), Vector(22, -0.9, 0)), False)
sketch4.addGeometry(Part.ArcOfCircle(Part.Circle(Vector(22, -2.9, 0), Vector(0, 0, 1), 2), math.radians(90), math.radians(180)), False)
sketch4.addGeometry(Part.LineSegment(Vector(20, -2.9, 0), Vector(20, -4.9, 0)), False)
sketch4.addGeometry(Part.ArcOfCircle(Part.Circle(Vector(22, -4.9, 0), Vector(0, 0, 1), 2), math.radians(-180), math.radians(-90)), False)
sketch4.addGeometry(Part.LineSegment(Vector(22, -6.9, 0), Vector(24, -6.9, 0)), False)
sketch4.addGeometry(Part.ArcOfCircle(Part.Circle(Vector(24, -4.9, 0), Vector(0, 0, 1), 2), math.radians(-90), math.radians(0)), False)
sketch4.addGeometry(Part.LineSegment(Vector(26, -4.9, 0), Vector(26, -2.9, 0)), False)
sketch4.addGeometry(Part.ArcOfCircle(Part.Circle(Vector(24, -2.9, 0), Vector(0, 0, 1), 2), math.radians(0), math.radians(90)), False)
sketch4.addGeometry(Part.LineSegment(Vector(5, 8.6, 0), Vector(3, 8.6, 0)), False)
sketch4.addGeometry(Part.ArcOfCircle(Part.Circle(Vector(3, 6.6, 0), Vector(0, 0, 1), 2), math.radians(90), math.radians(180)), False)
sketch4.addGeometry(Part.LineSegment(Vector(1, 6.6, 0), Vector(1, 4.6, 0)), False)
sketch4.addGeometry(Part.ArcOfCircle(Part.Circle(Vector(3, 4.6, 0), Vector(0, 0, 1), 2), math.radians(-180), math.radians(-90)), False)
sketch4.addGeometry(Part.LineSegment(Vector(3, 2.6, 0), Vector(5, 2.6, 0)), False)
sketch4.addGeometry(Part.ArcOfCircle(Part.Circle(Vector(5, 4.6, 0), Vector(0, 0, 1), 2), math.radians(-90), math.radians(0)), False)
sketch4.addGeometry(Part.LineSegment(Vector(7, 4.6, 0), Vector(7, 6.6, 0)), False)
sketch4.addGeometry(Part.ArcOfCircle(Part.Circle(Vector(5, 6.6, 0), Vector(0, 0, 1), 2), math.radians(0), math.radians(90)), False)
sketch4.addGeometry(Part.LineSegment(Vector(5, -0.9, 0), Vector(3, -0.9, 0)), False)
sketch4.addGeometry(Part.ArcOfCircle(Part.Circle(Vector(3, -2.9, 0), Vector(0, 0, 1), 2), math.radians(90), math.radians(180)), False)
sketch4.addGeometry(Part.LineSegment(Vector(1, -2.9, 0), Vector(1, -4.9, 0)), False)
sketch4.addGeometry(Part.ArcOfCircle(Part.Circle(Vector(3, -4.9, 0), Vector(0, 0, 1), 2), math.radians(-180), math.radians(-90)), False)
sketch4.addGeometry(Part.LineSegment(Vector(3, -6.9, 0), Vector(5, -6.9, 0)), False)
sketch4.addGeometry(Part.ArcOfCircle(Part.Circle(Vector(5, -4.9, 0), Vector(0, 0, 1), 2), math.radians(-90), math.radians(0)), False)
sketch4.addGeometry(Part.LineSegment(Vector(7, -4.9, 0), Vector(7, -2.9, 0)), False)
sketch4.addGeometry(Part.ArcOfCircle(Part.Circle(Vector(5, -2.9, 0), Vector(0, 0, 1), 2), math.radians(0), math.radians(90)), False)
sketch4.addConstraint(Sketcher.Constraint("Tangent", 0, 2, 1, 1))
sketch4.addConstraint(Sketcher.Constraint("Tangent", 1, 2, 2, 1))
sketch4.addConstraint(Sketcher.Constraint("Tangent", 2, 2, 3, 1))
sketch4.addConstraint(Sketcher.Constraint("Tangent", 3, 2, 4, 1))
sketch4.addConstraint(Sketcher.Constraint("Tangent", 4, 2, 5, 1))
sketch4.addConstraint(Sketcher.Constraint("Tangent", 5, 2, 6, 1))
sketch4.addConstraint(Sketcher.Constraint("Tangent", 6, 2, 7, 1))
sketch4.addConstraint(Sketcher.Constraint("Tangent", 7, 2, 0, 1))
sketch4.addConstraint(Sketcher.Constraint("Tangent", 8, 2, 9, 1))
sketch4.addConstraint(Sketcher.Constraint("Tangent", 9, 2, 10, 1))
sketch4.addConstraint(Sketcher.Constraint("Tangent", 10, 2, 11, 1))
sketch4.addConstraint(Sketcher.Constraint("Tangent", 11, 2, 12, 1))
sketch4.addConstraint(Sketcher.Constraint("Tangent", 12, 2, 13, 1))
sketch4.addConstraint(Sketcher.Constraint("Tangent", 13, 2, 14, 1))
sketch4.addConstraint(Sketcher.Constraint("Tangent", 14, 2, 15, 1))
sketch4.addConstraint(Sketcher.Constraint("Tangent", 15, 2, 8, 1))
sketch4.addConstraint(Sketcher.Constraint("Tangent", 16, 2, 17, 1))
sketch4.addConstraint(Sketcher.Constraint("Tangent", 17, 2, 18, 1))
sketch4.addConstraint(Sketcher.Constraint("Tangent", 18, 2, 19, 1))
sketch4.addConstraint(Sketcher.Constraint("Tangent", 19, 2, 20, 1))
sketch4.addConstraint(Sketcher.Constraint("Tangent", 20, 2, 21, 1))
sketch4.addConstraint(Sketcher.Constraint("Tangent", 21, 2, 22, 1))
sketch4.addConstraint(Sketcher.Constraint("Tangent", 22, 2, 23, 1))
sketch4.addConstraint(Sketcher.Constraint("Tangent", 23, 2, 16, 1))
sketch4.addConstraint(Sketcher.Constraint("Tangent", 24, 2, 25, 1))
sketch4.addConstraint(Sketcher.Constraint("Tangent", 25, 2, 26, 1))
sketch4.addConstraint(Sketcher.Constraint("Tangent", 26, 2, 27, 1))
sketch4.addConstraint(Sketcher.Constraint("Tangent", 27, 2, 28, 1))
sketch4.addConstraint(Sketcher.Constraint("Tangent", 28, 2, 29, 1))
sketch4.addConstraint(Sketcher.Constraint("Tangent", 29, 2, 30, 1))
sketch4.addConstraint(Sketcher.Constraint("Tangent", 30, 2, 31, 1))
sketch4.addConstraint(Sketcher.Constraint("Tangent", 31, 2, 24, 1))
sketch4.addConstraint(Sketcher.Constraint("Tangent", 32, 2, 33, 1))
sketch4.addConstraint(Sketcher.Constraint("Tangent", 33, 2, 34, 1))
sketch4.addConstraint(Sketcher.Constraint("Tangent", 34, 2, 35, 1))
sketch4.addConstraint(Sketcher.Constraint("Tangent", 35, 2, 36, 1))
sketch4.addConstraint(Sketcher.Constraint("Tangent", 36, 2, 37, 1))
sketch4.addConstraint(Sketcher.Constraint("Tangent", 37, 2, 38, 1))
sketch4.addConstraint(Sketcher.Constraint("Tangent", 38, 2, 39, 1))
sketch4.addConstraint(Sketcher.Constraint("Tangent", 39, 2, 32, 1))
sketch4.addConstraint(Sketcher.Constraint("Tangent", 40, 2, 41, 1))
sketch4.addConstraint(Sketcher.Constraint("Tangent", 41, 2, 42, 1))
sketch4.addConstraint(Sketcher.Constraint("Tangent", 42, 2, 43, 1))
sketch4.addConstraint(Sketcher.Constraint("Tangent", 43, 2, 44, 1))
sketch4.addConstraint(Sketcher.Constraint("Tangent", 44, 2, 45, 1))
sketch4.addConstraint(Sketcher.Constraint("Tangent", 45, 2, 46, 1))
sketch4.addConstraint(Sketcher.Constraint("Tangent", 46, 2, 47, 1))
sketch4.addConstraint(Sketcher.Constraint("Tangent", 47, 2, 40, 1))
sketch4.addConstraint(Sketcher.Constraint("Tangent", 48, 2, 49, 1))
sketch4.addConstraint(Sketcher.Constraint("Tangent", 49, 2, 50, 1))
sketch4.addConstraint(Sketcher.Constraint("Tangent", 50, 2, 51, 1))
sketch4.addConstraint(Sketcher.Constraint("Tangent", 51, 2, 52, 1))
sketch4.addConstraint(Sketcher.Constraint("Tangent", 52, 2, 53, 1))
sketch4.addConstraint(Sketcher.Constraint("Tangent", 53, 2, 54, 1))
sketch4.addConstraint(Sketcher.Constraint("Tangent", 54, 2, 55, 1))
sketch4.addConstraint(Sketcher.Constraint("Tangent", 55, 2, 48, 1))
sketch4.addConstraint(Sketcher.Constraint("Tangent", 56, 2, 57, 1))
sketch4.addConstraint(Sketcher.Constraint("Tangent", 57, 2, 58, 1))
sketch4.addConstraint(Sketcher.Constraint("Tangent", 58, 2, 59, 1))
sketch4.addConstraint(Sketcher.Constraint("Tangent", 59, 2, 60, 1))
sketch4.addConstraint(Sketcher.Constraint("Tangent", 60, 2, 61, 1))
sketch4.addConstraint(Sketcher.Constraint("Tangent", 61, 2, 62, 1))
sketch4.addConstraint(Sketcher.Constraint("Tangent", 62, 2, 63, 1))
sketch4.addConstraint(Sketcher.Constraint("Tangent", 63, 2, 56, 1))
sketch4.addConstraint(Sketcher.Constraint("Tangent", 64, 2, 65, 1))
sketch4.addConstraint(Sketcher.Constraint("Tangent", 65, 2, 66, 1))
sketch4.addConstraint(Sketcher.Constraint("Tangent", 66, 2, 67, 1))
sketch4.addConstraint(Sketcher.Constraint("Tangent", 67, 2, 68, 1))
sketch4.addConstraint(Sketcher.Constraint("Tangent", 68, 2, 69, 1))
sketch4.addConstraint(Sketcher.Constraint("Tangent", 69, 2, 70, 1))
sketch4.addConstraint(Sketcher.Constraint("Tangent", 70, 2, 71, 1))
sketch4.addConstraint(Sketcher.Constraint("Tangent", 71, 2, 64, 1))
sketch4.addConstraint(Sketcher.Constraint("Horizontal", 0))
sketch4.addConstraint(Sketcher.Constraint("Vertical", 2))
sketch4.addConstraint(Sketcher.Constraint("Horizontal", 4))
sketch4.addConstraint(Sketcher.Constraint("Vertical", 6))
sketch4.addConstraint(Sketcher.Constraint("Horizontal", 8))
sketch4.addConstraint(Sketcher.Constraint("Vertical", 10))
sketch4.addConstraint(Sketcher.Constraint("Horizontal", 12))
sketch4.addConstraint(Sketcher.Constraint("Vertical", 14))
sketch4.addConstraint(Sketcher.Constraint("Horizontal", 16))
sketch4.addConstraint(Sketcher.Constraint("Vertical", 18))
sketch4.addConstraint(Sketcher.Constraint("Horizontal", 20))
sketch4.addConstraint(Sketcher.Constraint("Vertical", 22))
sketch4.addConstraint(Sketcher.Constraint("Horizontal", 24))
sketch4.addConstraint(Sketcher.Constraint("Vertical", 26))
sketch4.addConstraint(Sketcher.Constraint("Horizontal", 28))
sketch4.addConstraint(Sketcher.Constraint("Vertical", 30))
sketch4.addConstraint(Sketcher.Constraint("Horizontal", 32))
sketch4.addConstraint(Sketcher.Constraint("Vertical", 34))
sketch4.addConstraint(Sketcher.Constraint("Horizontal", 36))
sketch4.addConstraint(Sketcher.Constraint("Vertical", 38))
sketch4.addConstraint(Sketcher.Constraint("Horizontal", 40))
sketch4.addConstraint(Sketcher.Constraint("Vertical", 42))
sketch4.addConstraint(Sketcher.Constraint("Horizontal", 44))
sketch4.addConstraint(Sketcher.Constraint("Vertical", 46))
sketch4.addConstraint(Sketcher.Constraint("Horizontal", 48))
sketch4.addConstraint(Sketcher.Constraint("Vertical", 50))
sketch4.addConstraint(Sketcher.Constraint("Horizontal", 52))
sketch4.addConstraint(Sketcher.Constraint("Vertical", 54))
sketch4.addConstraint(Sketcher.Constraint("Horizontal", 56))
sketch4.addConstraint(Sketcher.Constraint("Vertical", 58))
sketch4.addConstraint(Sketcher.Constraint("Horizontal", 60))
sketch4.addConstraint(Sketcher.Constraint("Vertical", 62))
sketch4.addConstraint(Sketcher.Constraint("Horizontal", 64))
sketch4.addConstraint(Sketcher.Constraint("Vertical", 66))
sketch4.addConstraint(Sketcher.Constraint("Horizontal", 68))
sketch4.addConstraint(Sketcher.Constraint("Vertical", 70))
sketch4.addConstraint(Sketcher.Constraint("Equal", 1, 3))
sketch4.addConstraint(Sketcher.Constraint("Equal", 3, 5))
sketch4.addConstraint(Sketcher.Constraint("Equal", 5, 7))
sketch4.addConstraint(Sketcher.Constraint("Equal", 7, 9))
sketch4.addConstraint(Sketcher.Constraint("Equal", 9, 11))
sketch4.addConstraint(Sketcher.Constraint("Equal", 11, 13))
sketch4.addConstraint(Sketcher.Constraint("Equal", 13, 15))
sketch4.addConstraint(Sketcher.Constraint("Equal", 15, 17))
sketch4.addConstraint(Sketcher.Constraint("Equal", 17, 19))
sketch4.addConstraint(Sketcher.Constraint("Equal", 19, 21))
sketch4.addConstraint(Sketcher.Constraint("Equal", 21, 23))
sketch4.addConstraint(Sketcher.Constraint("Equal", 23, 25))
sketch4.addConstraint(Sketcher.Constraint("Equal", 25, 27))
sketch4.addConstraint(Sketcher.Constraint("Equal", 27, 29))
sketch4.addConstraint(Sketcher.Constraint("Equal", 29, 31))
sketch4.addConstraint(Sketcher.Constraint("Equal", 31, 33))
sketch4.addConstraint(Sketcher.Constraint("Equal", 33, 35))
sketch4.addConstraint(Sketcher.Constraint("Equal", 35, 37))
sketch4.addConstraint(Sketcher.Constraint("Equal", 37, 39))
sketch4.addConstraint(Sketcher.Constraint("Equal", 39, 41))
sketch4.addConstraint(Sketcher.Constraint("Equal", 41, 43))
sketch4.addConstraint(Sketcher.Constraint("Equal", 43, 45))
sketch4.addConstraint(Sketcher.Constraint("Equal", 45, 47))
sketch4.addConstraint(Sketcher.Constraint("Equal", 47, 49))
sketch4.addConstraint(Sketcher.Constraint("Equal", 49, 51))
sketch4.addConstraint(Sketcher.Constraint("Equal", 51, 53))
sketch4.addConstraint(Sketcher.Constraint("Equal", 53, 55))
sketch4.addConstraint(Sketcher.Constraint("Equal", 55, 57))
sketch4.addConstraint(Sketcher.Constraint("Equal", 57, 59))
sketch4.addConstraint(Sketcher.Constraint("Equal", 59, 61))
sketch4.addConstraint(Sketcher.Constraint("Equal", 61, 63))
sketch4.addConstraint(Sketcher.Constraint("Equal", 63, 65))
sketch4.addConstraint(Sketcher.Constraint("Equal", 65, 67))
sketch4.addConstraint(Sketcher.Constraint("Equal", 67, 69))
sketch4.addConstraint(Sketcher.Constraint("Equal", 69, 71))
sketch4.addConstraint(Sketcher.Constraint("Horizontal", 7, 3, 9, 3))
sketch4.addConstraint(Sketcher.Constraint("Horizontal", 5, 3, 11, 3))
sketch4.addConstraint(Sketcher.Constraint("Horizontal", 15, 3, 17, 3))
sketch4.addConstraint(Sketcher.Constraint("Horizontal", 13, 3, 19, 3))
sketch4.addConstraint(Sketcher.Constraint("Horizontal", 31, 3, 33, 3))
sketch4.addConstraint(Sketcher.Constraint("Horizontal", 29, 3, 35, 3))
sketch4.addConstraint(Sketcher.Constraint("Horizontal", 47, 3, 49, 3))
sketch4.addConstraint(Sketcher.Constraint("Horizontal", 45, 3, 51, 3))
sketch4.addConstraint(Sketcher.Constraint("Horizontal", 39, 3, 57, 3))
sketch4.addConstraint(Sketcher.Constraint("Horizontal", 37, 3, 59, 3))
sketch4.addConstraint(Sketcher.Constraint("Horizontal", 55, 3, 65, 3))
sketch4.addConstraint(Sketcher.Constraint("Horizontal", 53, 3, 67, 3))
sketch4.addConstraint(Sketcher.Constraint("Vertical", 11, 3, 25, 3))
sketch4.addConstraint(Sketcher.Constraint("Vertical", 15, 3, 29, 3))
sketch4.addConstraint(Sketcher.Constraint("Vertical", 19, 3, 33, 3))
sketch4.addConstraint(Sketcher.Constraint("Vertical", 23, 3, 37, 3))
sketch4.addConstraint(Sketcher.Constraint("Vertical", 27, 3, 41, 3))
sketch4.addConstraint(Sketcher.Constraint("Vertical", 31, 3, 45, 3))
sketch4.addConstraint(Sketcher.Constraint("Vertical", 35, 3, 49, 3))
sketch4.addConstraint(Sketcher.Constraint("Vertical", 39, 3, 53, 3))
sketch4.addConstraint(Sketcher.Constraint("Vertical", 3, 3, 57, 3))
sketch4.addConstraint(Sketcher.Constraint("Vertical", 7, 3, 61, 3))
sketch4.addConstraint(Sketcher.Constraint("Vertical", 59, 3, 65, 3))
sketch4.addConstraint(Sketcher.Constraint("Vertical", 63, 3, 69, 3))
sketch4.addConstraint(Sketcher.Constraint("Equal", 4, 8))
sketch4.addConstraint(Sketcher.Constraint("Equal", 12, 16))
sketch4.addConstraint(Sketcher.Constraint("Equal", 68, 2))
sketch4.addConstraint(Sketcher.Constraint("Equal", 22, 26))
sketch4.addConstraint(Sketcher.Constraint("Equal", 38, 42))
sketch4.addConstraint(Sketcher.Constraint("Radius", 1, Q("2 mm")))
sketch4.addConstraint(Sketcher.Constraint("DistanceX", 0, 2, 0, 1, Q("2 mm")))
sketch4.addConstraint(Sketcher.Constraint("DistanceX", -1, 1, 1, 3, Q("3 mm")))
sketch4.addConstraint(Sketcher.Constraint("DistanceX", -1, 1, 17, 3, Q("22 mm")))
sketch4.addConstraint(Sketcher.Constraint("DistanceX", -1, 1, 9, 3, Q("12.5 mm")))
sketch4.addConstraint(Sketcher.Constraint("DistanceY", -1, 1, 1, 3, Q("16.058824 mm")))
sketch4.addConstraint(Sketcher.Constraint("DistanceY", -1, 1, 25, 3, Q("6.558824 mm")))
sketch4.addConstraint(Sketcher.Constraint("DistanceY", 41, 3, -1, 1, Q("2.941176 mm")))
pocket2 = doc.addObject("PartDesign::Pocket", "Pocket001")
body.addObject(pocket2)
pocket2.Profile = sketch4
pocket2.Length = 1

# Sketch on XY plane
sketch5 = doc.addObject("Sketcher::SketchObject", "Sketch004")
body.addObject(sketch5)
sketch5.AttachmentSupport = (doc.XY_Plane, [""])
sketch5.MapMode = "FlatFace"
sketch5.AttachmentOffset = App.Placement(Vector(0, 0, 30), App.Rotation())
add_polygon(sketch5, [(2, 11.1), (2, 9.5), (25.1, 9.5), (25.1, 11.1)])  # lines 0-3
add_polygon(sketch5, [(2, 1.5), (2, 0), (25.1, 0), (25.1, 1.5)])  # lines 4-7
sketch5.addConstraint(Sketcher.Constraint("Vertical", 0))
sketch5.addConstraint(Sketcher.Constraint("Horizontal", 1))
sketch5.addConstraint(Sketcher.Constraint("Vertical", 2))
sketch5.addConstraint(Sketcher.Constraint("Horizontal", 3))
sketch5.addConstraint(Sketcher.Constraint("Vertical", 4))
sketch5.addConstraint(Sketcher.Constraint("Horizontal", 5))
sketch5.addConstraint(Sketcher.Constraint("Vertical", 6))
sketch5.addConstraint(Sketcher.Constraint("Horizontal", 7))
sketch5.addConstraint(Sketcher.Constraint("PointOnObject", 4, 2, -1))
sketch5.addConstraint(Sketcher.Constraint("Vertical", 3, 2, 4, 2))
sketch5.addConstraint(Sketcher.Constraint("Vertical", 2, 2, 5, 2))
sketch5.addConstraint(Sketcher.Constraint("Equal", 2, 4))
sketch5.addConstraint(Sketcher.Constraint("DistanceX", -1, 1, 0, 2, Q("2 mm")))
sketch5.addConstraint(Sketcher.Constraint("DistanceY", 6, 2, 1, 2, Q("8 mm")))
sketch5.addConstraint(Sketcher.Constraint("DistanceY", 0, 2, 0, 1, Q("1.529412 mm")))
sketch5.addConstraint(Sketcher.Constraint("DistanceX", 1, 1, 1, 2, Q("23.058824 mm")))
pocket3 = doc.addObject("PartDesign::Pocket", "Pocket002")
body.addObject(pocket3)
pocket3.Profile = sketch5
pocket3.Length = 1

# Sketch on XY plane
sketch6 = doc.addObject("Sketcher::SketchObject", "Sketch005")
body.addObject(sketch6)
sketch6.AttachmentSupport = (doc.XY_Plane, [""])
sketch6.MapMode = "FlatFace"
sketch6.AttachmentOffset = App.Placement(Vector(0, 0, 30), App.Rotation())
add_polygon(sketch6, [(8, 17.1), (8, -6), (9.5, -6), (9.5, 17.1)])  # lines 0-3
add_polygon(sketch6, [(17.5, 17.1), (17.5, -6), (19.1, -6), (19.1, 17.1)])  # lines 4-7
sketch6.addConstraint(Sketcher.Constraint("Vertical", 0))
sketch6.addConstraint(Sketcher.Constraint("Horizontal", 1))
sketch6.addConstraint(Sketcher.Constraint("Vertical", 2))
sketch6.addConstraint(Sketcher.Constraint("Horizontal", 3))
sketch6.addConstraint(Sketcher.Constraint("Vertical", 4))
sketch6.addConstraint(Sketcher.Constraint("Horizontal", 5))
sketch6.addConstraint(Sketcher.Constraint("Vertical", 6))
sketch6.addConstraint(Sketcher.Constraint("Horizontal", 7))
sketch6.addConstraint(Sketcher.Constraint("Horizontal", 1, 2, 4, 2))
sketch6.addConstraint(Sketcher.Constraint("Horizontal", 3, 2, 6, 2))
sketch6.addConstraint(Sketcher.Constraint("Equal", 3, 5))
sketch6.addConstraint(Sketcher.Constraint("DistanceX", -1, 1, 0, 2, Q("8 mm")))
sketch6.addConstraint(Sketcher.Constraint("DistanceY", 0, 2, -1, 1, Q("6 mm")))
sketch6.addConstraint(Sketcher.Constraint("DistanceX", 1, 2, 4, 2, Q("8 mm")))
sketch6.addConstraint(Sketcher.Constraint("DistanceX", 1, 1, 1, 2, Q("1.529412 mm")))
sketch6.addConstraint(Sketcher.Constraint("DistanceY", 0, 2, 0, 1, Q("23.058824 mm")))
pocket4 = doc.addObject("PartDesign::Pocket", "Pocket003")
body.addObject(pocket4)
pocket4.Profile = sketch6
pocket4.Length = 1
doc.recompute()

fillet = doc.addObject("PartDesign::Fillet", "Fillet")
body.addObject(fillet)
fillet.Base = (pocket4, edges_at(pocket4, [
    (9.529, 0, 29.5),
    (9.529, 1.529, 29.5),
    (9.529, 9.529, 29.5),
    (9.529, 11.059, 29.5),
    (8, 0, 29.5),
    (8, 1.529, 29.5),
    (8, 9.529, 29.5),
    (8, 11.059, 29.5),
    (17.529, 0, 29.5),
    (17.529, 1.529, 29.5),
    (17.529, 9.529, 29.5),
    (17.529, 11.059, 29.5),
    (19.059, 0, 29.5),
    (19.059, 1.529, 29.5),
    (19.059, 9.529, 29.5),
    (19.059, 11.059, 29.5),
]))
fillet.Radius = 2

doc.recompute()
